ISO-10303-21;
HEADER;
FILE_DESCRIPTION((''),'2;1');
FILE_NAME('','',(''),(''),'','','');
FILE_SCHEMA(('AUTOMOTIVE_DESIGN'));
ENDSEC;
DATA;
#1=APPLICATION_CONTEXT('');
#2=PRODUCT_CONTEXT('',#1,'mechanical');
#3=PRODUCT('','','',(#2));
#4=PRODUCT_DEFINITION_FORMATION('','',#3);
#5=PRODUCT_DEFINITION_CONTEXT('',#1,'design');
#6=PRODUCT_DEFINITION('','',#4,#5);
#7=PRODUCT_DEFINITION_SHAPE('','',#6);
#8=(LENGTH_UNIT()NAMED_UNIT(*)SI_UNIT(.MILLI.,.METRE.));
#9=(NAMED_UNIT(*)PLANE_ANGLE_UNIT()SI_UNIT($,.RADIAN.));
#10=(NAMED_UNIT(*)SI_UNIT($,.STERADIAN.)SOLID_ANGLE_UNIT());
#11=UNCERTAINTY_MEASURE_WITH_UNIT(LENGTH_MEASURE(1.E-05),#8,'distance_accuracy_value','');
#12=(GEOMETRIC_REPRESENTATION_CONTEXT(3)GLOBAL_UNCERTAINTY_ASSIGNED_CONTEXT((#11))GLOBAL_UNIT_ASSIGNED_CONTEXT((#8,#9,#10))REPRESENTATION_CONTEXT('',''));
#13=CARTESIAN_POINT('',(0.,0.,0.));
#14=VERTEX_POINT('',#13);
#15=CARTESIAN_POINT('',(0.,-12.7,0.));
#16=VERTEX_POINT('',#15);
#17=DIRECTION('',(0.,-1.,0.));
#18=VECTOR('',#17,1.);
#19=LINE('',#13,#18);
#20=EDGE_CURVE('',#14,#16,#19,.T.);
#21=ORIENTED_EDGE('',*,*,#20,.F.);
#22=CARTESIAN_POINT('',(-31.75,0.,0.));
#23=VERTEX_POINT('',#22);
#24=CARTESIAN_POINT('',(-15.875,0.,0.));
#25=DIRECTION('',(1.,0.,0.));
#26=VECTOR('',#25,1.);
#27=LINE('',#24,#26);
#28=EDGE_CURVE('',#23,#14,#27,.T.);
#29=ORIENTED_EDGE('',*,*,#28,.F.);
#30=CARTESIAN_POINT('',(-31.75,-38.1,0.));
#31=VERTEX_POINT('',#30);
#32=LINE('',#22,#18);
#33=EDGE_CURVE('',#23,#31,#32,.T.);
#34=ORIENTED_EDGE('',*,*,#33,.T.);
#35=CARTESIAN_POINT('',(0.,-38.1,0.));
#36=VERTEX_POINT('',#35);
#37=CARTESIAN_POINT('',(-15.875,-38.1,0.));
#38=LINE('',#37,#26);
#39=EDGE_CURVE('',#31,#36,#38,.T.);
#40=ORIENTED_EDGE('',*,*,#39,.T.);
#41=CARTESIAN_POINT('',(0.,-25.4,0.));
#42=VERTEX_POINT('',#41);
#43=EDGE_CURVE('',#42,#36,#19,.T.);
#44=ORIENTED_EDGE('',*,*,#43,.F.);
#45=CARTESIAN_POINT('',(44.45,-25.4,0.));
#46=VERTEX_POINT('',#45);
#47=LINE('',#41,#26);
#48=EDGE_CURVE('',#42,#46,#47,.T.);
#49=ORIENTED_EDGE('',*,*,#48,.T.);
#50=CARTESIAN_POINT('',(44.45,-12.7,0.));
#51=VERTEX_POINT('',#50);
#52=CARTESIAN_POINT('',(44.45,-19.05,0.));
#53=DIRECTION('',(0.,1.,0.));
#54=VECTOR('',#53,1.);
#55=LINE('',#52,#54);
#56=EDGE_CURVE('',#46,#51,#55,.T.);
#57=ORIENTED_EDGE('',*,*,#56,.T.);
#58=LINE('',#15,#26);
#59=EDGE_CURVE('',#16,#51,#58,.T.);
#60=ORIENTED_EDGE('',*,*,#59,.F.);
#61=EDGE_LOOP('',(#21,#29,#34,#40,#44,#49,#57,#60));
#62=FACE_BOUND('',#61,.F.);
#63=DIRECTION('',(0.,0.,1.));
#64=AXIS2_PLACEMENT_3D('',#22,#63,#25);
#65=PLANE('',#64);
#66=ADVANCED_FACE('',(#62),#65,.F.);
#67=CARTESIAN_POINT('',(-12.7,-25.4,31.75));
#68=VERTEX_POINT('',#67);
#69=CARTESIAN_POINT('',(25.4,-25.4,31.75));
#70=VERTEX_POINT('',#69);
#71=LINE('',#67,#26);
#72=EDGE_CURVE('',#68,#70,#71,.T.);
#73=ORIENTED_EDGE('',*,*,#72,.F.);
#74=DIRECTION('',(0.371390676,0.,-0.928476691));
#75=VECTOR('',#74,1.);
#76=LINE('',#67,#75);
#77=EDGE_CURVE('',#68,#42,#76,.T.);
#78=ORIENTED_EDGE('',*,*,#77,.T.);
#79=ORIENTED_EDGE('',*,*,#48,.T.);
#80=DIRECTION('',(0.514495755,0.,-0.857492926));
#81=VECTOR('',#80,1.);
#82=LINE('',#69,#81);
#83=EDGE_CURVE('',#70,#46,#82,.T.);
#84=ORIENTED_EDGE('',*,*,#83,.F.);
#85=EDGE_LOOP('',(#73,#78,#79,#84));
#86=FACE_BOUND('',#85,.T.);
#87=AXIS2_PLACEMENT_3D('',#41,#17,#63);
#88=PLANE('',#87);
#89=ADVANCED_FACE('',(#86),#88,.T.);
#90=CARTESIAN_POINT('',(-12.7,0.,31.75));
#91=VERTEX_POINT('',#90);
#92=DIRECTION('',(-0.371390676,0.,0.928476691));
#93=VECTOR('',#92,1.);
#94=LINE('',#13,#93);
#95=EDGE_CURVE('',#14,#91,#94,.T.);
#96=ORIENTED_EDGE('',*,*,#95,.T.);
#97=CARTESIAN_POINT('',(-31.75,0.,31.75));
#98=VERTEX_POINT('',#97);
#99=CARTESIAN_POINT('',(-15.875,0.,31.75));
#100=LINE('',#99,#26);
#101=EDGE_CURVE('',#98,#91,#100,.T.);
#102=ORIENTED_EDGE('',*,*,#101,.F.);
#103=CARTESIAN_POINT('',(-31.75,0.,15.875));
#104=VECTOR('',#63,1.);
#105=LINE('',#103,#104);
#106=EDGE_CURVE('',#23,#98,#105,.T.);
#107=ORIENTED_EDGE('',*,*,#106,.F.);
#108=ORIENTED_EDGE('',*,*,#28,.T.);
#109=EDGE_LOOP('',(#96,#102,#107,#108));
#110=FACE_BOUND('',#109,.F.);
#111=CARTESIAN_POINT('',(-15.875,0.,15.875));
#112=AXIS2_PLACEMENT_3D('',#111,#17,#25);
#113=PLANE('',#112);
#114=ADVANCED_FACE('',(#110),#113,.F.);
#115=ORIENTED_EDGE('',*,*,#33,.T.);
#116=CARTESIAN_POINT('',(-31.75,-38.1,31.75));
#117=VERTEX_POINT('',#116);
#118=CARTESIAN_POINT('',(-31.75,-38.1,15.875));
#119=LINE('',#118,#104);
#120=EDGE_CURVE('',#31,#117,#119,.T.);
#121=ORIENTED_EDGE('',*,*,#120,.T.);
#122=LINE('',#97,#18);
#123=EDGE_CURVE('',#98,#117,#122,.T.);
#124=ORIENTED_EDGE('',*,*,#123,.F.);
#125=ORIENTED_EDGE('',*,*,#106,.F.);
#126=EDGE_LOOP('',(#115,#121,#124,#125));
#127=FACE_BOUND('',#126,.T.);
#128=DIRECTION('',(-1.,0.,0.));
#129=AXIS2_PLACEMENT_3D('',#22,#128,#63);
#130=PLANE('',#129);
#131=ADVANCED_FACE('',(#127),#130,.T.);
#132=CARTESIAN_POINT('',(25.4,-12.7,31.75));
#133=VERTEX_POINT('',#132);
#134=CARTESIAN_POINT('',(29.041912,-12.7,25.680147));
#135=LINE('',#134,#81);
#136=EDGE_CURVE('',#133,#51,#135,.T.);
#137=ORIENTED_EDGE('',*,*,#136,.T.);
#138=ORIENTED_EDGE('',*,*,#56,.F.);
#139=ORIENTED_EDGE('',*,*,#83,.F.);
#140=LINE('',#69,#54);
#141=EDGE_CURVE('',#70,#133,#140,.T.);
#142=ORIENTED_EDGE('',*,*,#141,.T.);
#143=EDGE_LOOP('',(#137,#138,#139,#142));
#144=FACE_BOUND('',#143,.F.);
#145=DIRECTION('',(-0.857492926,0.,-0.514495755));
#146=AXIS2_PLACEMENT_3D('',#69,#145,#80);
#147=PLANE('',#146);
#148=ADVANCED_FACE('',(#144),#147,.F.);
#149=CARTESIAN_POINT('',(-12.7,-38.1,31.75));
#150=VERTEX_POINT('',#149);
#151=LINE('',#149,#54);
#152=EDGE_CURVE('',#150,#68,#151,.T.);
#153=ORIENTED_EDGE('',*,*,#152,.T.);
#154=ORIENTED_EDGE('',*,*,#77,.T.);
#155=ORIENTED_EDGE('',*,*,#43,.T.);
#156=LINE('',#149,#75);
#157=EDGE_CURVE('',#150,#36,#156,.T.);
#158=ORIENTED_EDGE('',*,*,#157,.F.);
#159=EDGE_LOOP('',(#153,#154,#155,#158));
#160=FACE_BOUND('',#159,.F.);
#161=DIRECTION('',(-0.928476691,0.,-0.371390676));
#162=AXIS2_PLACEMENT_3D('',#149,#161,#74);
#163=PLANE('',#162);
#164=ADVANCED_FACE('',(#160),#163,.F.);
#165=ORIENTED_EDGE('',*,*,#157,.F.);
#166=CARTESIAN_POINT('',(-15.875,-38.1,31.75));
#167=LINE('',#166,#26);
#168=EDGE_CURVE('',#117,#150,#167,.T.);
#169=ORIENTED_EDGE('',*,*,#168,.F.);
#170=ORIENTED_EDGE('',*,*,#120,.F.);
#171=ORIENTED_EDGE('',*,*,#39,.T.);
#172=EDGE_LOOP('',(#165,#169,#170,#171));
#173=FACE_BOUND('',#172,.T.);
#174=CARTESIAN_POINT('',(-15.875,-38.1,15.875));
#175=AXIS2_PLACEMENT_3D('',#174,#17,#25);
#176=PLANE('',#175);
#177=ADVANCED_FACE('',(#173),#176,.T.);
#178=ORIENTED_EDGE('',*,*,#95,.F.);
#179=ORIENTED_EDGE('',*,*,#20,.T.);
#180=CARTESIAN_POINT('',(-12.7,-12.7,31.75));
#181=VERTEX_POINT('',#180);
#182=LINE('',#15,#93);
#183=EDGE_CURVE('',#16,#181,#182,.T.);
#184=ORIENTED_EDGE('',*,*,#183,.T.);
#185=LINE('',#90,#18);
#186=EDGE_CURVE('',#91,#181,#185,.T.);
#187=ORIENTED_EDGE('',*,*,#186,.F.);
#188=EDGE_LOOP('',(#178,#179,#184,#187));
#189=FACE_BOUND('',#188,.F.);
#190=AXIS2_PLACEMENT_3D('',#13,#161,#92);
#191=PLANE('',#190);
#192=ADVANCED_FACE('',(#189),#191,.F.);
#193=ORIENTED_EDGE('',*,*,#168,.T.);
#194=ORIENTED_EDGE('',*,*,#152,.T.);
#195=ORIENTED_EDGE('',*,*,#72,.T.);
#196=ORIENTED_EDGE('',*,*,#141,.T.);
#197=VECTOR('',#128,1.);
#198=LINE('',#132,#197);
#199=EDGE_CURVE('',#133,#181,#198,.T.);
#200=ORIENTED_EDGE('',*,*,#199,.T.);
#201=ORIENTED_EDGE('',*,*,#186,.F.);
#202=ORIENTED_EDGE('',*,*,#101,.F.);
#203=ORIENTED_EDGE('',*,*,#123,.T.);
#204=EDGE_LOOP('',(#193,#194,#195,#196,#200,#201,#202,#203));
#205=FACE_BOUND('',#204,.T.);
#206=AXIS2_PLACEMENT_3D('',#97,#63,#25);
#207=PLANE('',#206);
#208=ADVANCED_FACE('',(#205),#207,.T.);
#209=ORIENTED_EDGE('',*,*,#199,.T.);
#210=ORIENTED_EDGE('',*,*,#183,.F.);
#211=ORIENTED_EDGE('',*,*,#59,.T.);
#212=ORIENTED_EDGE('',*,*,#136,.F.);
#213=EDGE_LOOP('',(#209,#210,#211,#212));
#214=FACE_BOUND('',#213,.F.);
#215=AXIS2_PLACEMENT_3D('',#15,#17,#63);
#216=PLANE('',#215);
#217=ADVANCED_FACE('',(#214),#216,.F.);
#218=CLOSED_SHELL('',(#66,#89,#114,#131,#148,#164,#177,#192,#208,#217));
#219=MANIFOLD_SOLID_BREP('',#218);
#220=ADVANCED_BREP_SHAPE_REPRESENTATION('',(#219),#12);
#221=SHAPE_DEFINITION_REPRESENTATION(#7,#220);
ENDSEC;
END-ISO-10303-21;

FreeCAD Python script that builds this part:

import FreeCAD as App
import Part
import Sketcher
from FreeCAD import Vector
Q = App.Units.Quantity

doc = App.newDocument("Part")
body = doc.addObject("PartDesign::Body", "Body")

# Sketch on XZ plane
sketch1 = body.newObject("Sketcher::SketchObject", "Sketch")
sketch1.AttachmentSupport = (doc.getObject("XZ_Plane"), [""])
sketch1.MapMode = "FlatFace"
sketch1.addGeometry(Part.LineSegment(Vector(-32, 32, 0), Vector(-32, 0, 0)), False)
sketch1.addGeometry(Part.LineSegment(Vector(-32, 0, 0), Vector(0, 0, 0)), False)
sketch1.addGeometry(Part.LineSegment(Vector(0, 0, 0), Vector(0, 32, 0)), False)
sketch1.addGeometry(Part.LineSegment(Vector(0, 32, 0), Vector(-32, 32, 0)), False)
sketch1.addConstraint(Sketcher.Constraint("Coincident", 0, 2, 1, 1))
sketch1.addConstraint(Sketcher.Constraint("Coincident", 1, 2, 2, 1))
sketch1.addConstraint(Sketcher.Constraint("Coincident", 2, 2, 3, 1))
sketch1.addConstraint(Sketcher.Constraint("Coincident", 3, 2, 0, 1))
sketch1.addConstraint(Sketcher.Constraint("Vertical", 0))
sketch1.addConstraint(Sketcher.Constraint("Horizontal", 1))
sketch1.addConstraint(Sketcher.Constraint("Vertical", 2))
sketch1.addConstraint(Sketcher.Constraint("Horizontal", 3))
sketch1.addConstraint(Sketcher.Constraint("Coincident", 1, 2, -1, 1))
sketch1.addConstraint(Sketcher.Constraint("Equal", 3, 0))
sketch1.addConstraint(Sketcher.Constraint("DistanceX", 1, 1, 1, 2, Q("1.25 in")))
pad1 = body.newObject("PartDesign::Pad", "Pad")
pad1.Profile = sketch1
pad1.Length = Q("1.5 in")

# Sketch on YZ plane
sketch2 = body.newObject("Sketcher::SketchObject", "Sketch001")
sketch2.AttachmentSupport = (doc.getObject("YZ_Plane"), [""])
sketch2.MapMode = "FlatFace"
sketch2.addGeometry(Part.LineSegment(Vector(-25, 32, 0), Vector(-25, 0, 0)), False)
sketch2.addGeometry(Part.LineSegment(Vector(-25, 0, 0), Vector(-13, 0, 0)), False)
sketch2.addGeometry(Part.LineSegment(Vector(-13, 0, 0), Vector(-13, 32, 0)), False)
sketch2.addGeometry(Part.LineSegment(Vector(-13, 32, 0), Vector(-25, 32, 0)), False)
sketch2.addConstraint(Sketcher.Constraint("Coincident", 0, 2, 1, 1))
sketch2.addConstraint(Sketcher.Constraint("Coincident", 1, 2, 2, 1))
sketch2.addConstraint(Sketcher.Constraint("Coincident", 2, 2, 3, 1))
sketch2.addConstraint(Sketcher.Constraint("Coincident", 3, 2, 0, 1))
sketch2.addConstraint(Sketcher.Constraint("Vertical", 0))
sketch2.addConstraint(Sketcher.Constraint("Horizontal", 1))
sketch2.addConstraint(Sketcher.Constraint("Vertical", 2))
sketch2.addConstraint(Sketcher.Constraint("Horizontal", 3))
sketch2.addConstraint(Sketcher.Constraint("PointOnObject", 0, 2, -1))
sketch2.addConstraint(Sketcher.Constraint("DistanceX", 1, 1, 1, 2, Q("0.5 in")))
sketch2.addConstraint(Sketcher.Constraint("DistanceX", 0, 2, -1, 1, Q("1 in")))
sketch2.addConstraint(Sketcher.Constraint("DistanceY", 0, 2, 0, 1, Q("1.25 in")))
pad2 = body.newObject("PartDesign::Pad", "Pad001")
pad2.Profile = sketch2
pad2.Length = Q("1.75 in")

# Sketch on XZ plane
sketch3 = body.newObject("Sketcher::SketchObject", "Sketch002")
sketch3.AttachmentSupport = (doc.getObject("XZ_Plane"), [""])
sketch3.MapMode = "FlatFace"
sketch3.AttachmentOffset = App.Placement(Vector(0, 0, 1 * 25.4), App.Rotation())
sketch3.addGeometry(Part.LineSegment(Vector(44, 32, 0), Vector(25, 32, 0)), False)
sketch3.addGeometry(Part.LineSegment(Vector(25, 32, 0), Vector(44, 0, 0)), False)
sketch3.addGeometry(Part.LineSegment(Vector(44, 0, 0), Vector(44, 32, 0)), False)
sketch3.addConstraint(Sketcher.Constraint("Coincident", 0, 2, 1, 1))
sketch3.addConstraint(Sketcher.Constraint("Coincident", 1, 2, 2, 1))
sketch3.addConstraint(Sketcher.Constraint("Coincident", 2, 2, 0, 1))
sketch3.addConstraint(Sketcher.Constraint("Horizontal", 0))
sketch3.addConstraint(Sketcher.Constraint("Vertical", 2))
sketch3.addConstraint(Sketcher.Constraint("PointOnObject", 1, 2, -1))
sketch3.addConstraint(Sketcher.Constraint("DistanceX", -1, 1, 0, 2, Q("1 in")))
sketch3.addConstraint(Sketcher.Constraint("DistanceX", 0, 2, 0, 1, Q("0.75 in")))
sketch3.addConstraint(Sketcher.Constraint("DistanceY", 2, 1, 2, 2, Q("1.25 in")))
pocket1 = body.newObject("PartDesign::Pocket", "Pocket")
pocket1.Profile = sketch3
pocket1.Type = "ThroughAll"

# Sketch on XZ plane
sketch4 = body.newObject("Sketcher::SketchObject", "Sketch003")
sketch4.AttachmentSupport = (doc.getObject("XZ_Plane"), [""])
sketch4.MapMode = "FlatFace"
sketch4.AttachmentOffset = App.Placement(Vector(0, 0, 1.5 * 25.4), App.Rotation())
sketch4.addGeometry(Part.LineSegment(Vector(-13, 32, 0), Vector(0, 0, 0)), False)
sketch4.addGeometry(Part.LineSegment(Vector(0, 0, 0), Vector(0, 32, 0)), False)
sketch4.addGeometry(Part.LineSegment(Vector(0, 32, 0), Vector(-13, 32, 0)), False)
sketch4.addConstraint(Sketcher.Constraint("Coincident", 0, 2, 1, 1))
sketch4.addConstraint(Sketcher.Constraint("Coincident", 1, 2, 2, 1))
sketch4.addConstraint(Sketcher.Constraint("Coincident", 2, 2, 0, 1))
sketch4.addConstraint(Sketcher.Constraint("Vertical", 1))
sketch4.addConstraint(Sketcher.Constraint("Horizontal", 2))
sketch4.addConstraint(Sketcher.Constraint("Coincident", 0, 2, -1, 1))
sketch4.addConstraint(Sketcher.Constraint("DistanceX", 2, 2, 2, 1, Q("0.5 in")))
sketch4.addConstraint(Sketcher.Constraint("DistanceY", 1, 1, 1, 2, Q("1.25 in")))
pocket2 = body.newObject("PartDesign::Pocket", "Pocket001")
pocket2.Profile = sketch4
pocket2.Length = Q("0.5 in")

# Sketch on XZ plane
sketch5 = body.newObject("Sketcher::SketchObject", "Sketch004")
sketch5.AttachmentSupport = (doc.getObject("XZ_Plane"), [""])
sketch5.MapMode = "FlatFace"
sketch5.addGeometry(Part.LineSegment(Vector(0, 32, 0), Vector(0, 0, 0)), False)
sketch5.addGeometry(Part.LineSegment(Vector(0, 0, 0), Vector(-13, 32, 0)), False)
sketch5.addGeometry(Part.LineSegment(Vector(-13, 32, 0), Vector(0, 32, 0)), False)
sketch5.addConstraint(Sketcher.Constraint("Coincident", 0, 2, 1, 1))
sketch5.addConstraint(Sketcher.Constraint("Coincident", 1, 2, 2, 1))
sketch5.addConstraint(Sketcher.Constraint("Coincident", 2, 2, 0, 1))
sketch5.addConstraint(Sketcher.Constraint("Vertical", 0))
sketch5.addConstraint(Sketcher.Constraint("Horizontal", 2))
sketch5.addConstraint(Sketcher.Constraint("Coincident", 0, 2, -1, 1))
sketch5.addConstraint(Sketcher.Constraint("DistanceX", 2, 1, 2, 2, Q("0.5 in")))
sketch5.addConstraint(Sketcher.Constraint("DistanceY", 0, 2, 0, 1, Q("1.25 in")))
pocket3 = body.newObject("PartDesign::Pocket", "Pocket002")
pocket3.Profile = sketch5
pocket3.Length = Q("0.5 in")
pocket3.Reversed = True

doc.recompute()
